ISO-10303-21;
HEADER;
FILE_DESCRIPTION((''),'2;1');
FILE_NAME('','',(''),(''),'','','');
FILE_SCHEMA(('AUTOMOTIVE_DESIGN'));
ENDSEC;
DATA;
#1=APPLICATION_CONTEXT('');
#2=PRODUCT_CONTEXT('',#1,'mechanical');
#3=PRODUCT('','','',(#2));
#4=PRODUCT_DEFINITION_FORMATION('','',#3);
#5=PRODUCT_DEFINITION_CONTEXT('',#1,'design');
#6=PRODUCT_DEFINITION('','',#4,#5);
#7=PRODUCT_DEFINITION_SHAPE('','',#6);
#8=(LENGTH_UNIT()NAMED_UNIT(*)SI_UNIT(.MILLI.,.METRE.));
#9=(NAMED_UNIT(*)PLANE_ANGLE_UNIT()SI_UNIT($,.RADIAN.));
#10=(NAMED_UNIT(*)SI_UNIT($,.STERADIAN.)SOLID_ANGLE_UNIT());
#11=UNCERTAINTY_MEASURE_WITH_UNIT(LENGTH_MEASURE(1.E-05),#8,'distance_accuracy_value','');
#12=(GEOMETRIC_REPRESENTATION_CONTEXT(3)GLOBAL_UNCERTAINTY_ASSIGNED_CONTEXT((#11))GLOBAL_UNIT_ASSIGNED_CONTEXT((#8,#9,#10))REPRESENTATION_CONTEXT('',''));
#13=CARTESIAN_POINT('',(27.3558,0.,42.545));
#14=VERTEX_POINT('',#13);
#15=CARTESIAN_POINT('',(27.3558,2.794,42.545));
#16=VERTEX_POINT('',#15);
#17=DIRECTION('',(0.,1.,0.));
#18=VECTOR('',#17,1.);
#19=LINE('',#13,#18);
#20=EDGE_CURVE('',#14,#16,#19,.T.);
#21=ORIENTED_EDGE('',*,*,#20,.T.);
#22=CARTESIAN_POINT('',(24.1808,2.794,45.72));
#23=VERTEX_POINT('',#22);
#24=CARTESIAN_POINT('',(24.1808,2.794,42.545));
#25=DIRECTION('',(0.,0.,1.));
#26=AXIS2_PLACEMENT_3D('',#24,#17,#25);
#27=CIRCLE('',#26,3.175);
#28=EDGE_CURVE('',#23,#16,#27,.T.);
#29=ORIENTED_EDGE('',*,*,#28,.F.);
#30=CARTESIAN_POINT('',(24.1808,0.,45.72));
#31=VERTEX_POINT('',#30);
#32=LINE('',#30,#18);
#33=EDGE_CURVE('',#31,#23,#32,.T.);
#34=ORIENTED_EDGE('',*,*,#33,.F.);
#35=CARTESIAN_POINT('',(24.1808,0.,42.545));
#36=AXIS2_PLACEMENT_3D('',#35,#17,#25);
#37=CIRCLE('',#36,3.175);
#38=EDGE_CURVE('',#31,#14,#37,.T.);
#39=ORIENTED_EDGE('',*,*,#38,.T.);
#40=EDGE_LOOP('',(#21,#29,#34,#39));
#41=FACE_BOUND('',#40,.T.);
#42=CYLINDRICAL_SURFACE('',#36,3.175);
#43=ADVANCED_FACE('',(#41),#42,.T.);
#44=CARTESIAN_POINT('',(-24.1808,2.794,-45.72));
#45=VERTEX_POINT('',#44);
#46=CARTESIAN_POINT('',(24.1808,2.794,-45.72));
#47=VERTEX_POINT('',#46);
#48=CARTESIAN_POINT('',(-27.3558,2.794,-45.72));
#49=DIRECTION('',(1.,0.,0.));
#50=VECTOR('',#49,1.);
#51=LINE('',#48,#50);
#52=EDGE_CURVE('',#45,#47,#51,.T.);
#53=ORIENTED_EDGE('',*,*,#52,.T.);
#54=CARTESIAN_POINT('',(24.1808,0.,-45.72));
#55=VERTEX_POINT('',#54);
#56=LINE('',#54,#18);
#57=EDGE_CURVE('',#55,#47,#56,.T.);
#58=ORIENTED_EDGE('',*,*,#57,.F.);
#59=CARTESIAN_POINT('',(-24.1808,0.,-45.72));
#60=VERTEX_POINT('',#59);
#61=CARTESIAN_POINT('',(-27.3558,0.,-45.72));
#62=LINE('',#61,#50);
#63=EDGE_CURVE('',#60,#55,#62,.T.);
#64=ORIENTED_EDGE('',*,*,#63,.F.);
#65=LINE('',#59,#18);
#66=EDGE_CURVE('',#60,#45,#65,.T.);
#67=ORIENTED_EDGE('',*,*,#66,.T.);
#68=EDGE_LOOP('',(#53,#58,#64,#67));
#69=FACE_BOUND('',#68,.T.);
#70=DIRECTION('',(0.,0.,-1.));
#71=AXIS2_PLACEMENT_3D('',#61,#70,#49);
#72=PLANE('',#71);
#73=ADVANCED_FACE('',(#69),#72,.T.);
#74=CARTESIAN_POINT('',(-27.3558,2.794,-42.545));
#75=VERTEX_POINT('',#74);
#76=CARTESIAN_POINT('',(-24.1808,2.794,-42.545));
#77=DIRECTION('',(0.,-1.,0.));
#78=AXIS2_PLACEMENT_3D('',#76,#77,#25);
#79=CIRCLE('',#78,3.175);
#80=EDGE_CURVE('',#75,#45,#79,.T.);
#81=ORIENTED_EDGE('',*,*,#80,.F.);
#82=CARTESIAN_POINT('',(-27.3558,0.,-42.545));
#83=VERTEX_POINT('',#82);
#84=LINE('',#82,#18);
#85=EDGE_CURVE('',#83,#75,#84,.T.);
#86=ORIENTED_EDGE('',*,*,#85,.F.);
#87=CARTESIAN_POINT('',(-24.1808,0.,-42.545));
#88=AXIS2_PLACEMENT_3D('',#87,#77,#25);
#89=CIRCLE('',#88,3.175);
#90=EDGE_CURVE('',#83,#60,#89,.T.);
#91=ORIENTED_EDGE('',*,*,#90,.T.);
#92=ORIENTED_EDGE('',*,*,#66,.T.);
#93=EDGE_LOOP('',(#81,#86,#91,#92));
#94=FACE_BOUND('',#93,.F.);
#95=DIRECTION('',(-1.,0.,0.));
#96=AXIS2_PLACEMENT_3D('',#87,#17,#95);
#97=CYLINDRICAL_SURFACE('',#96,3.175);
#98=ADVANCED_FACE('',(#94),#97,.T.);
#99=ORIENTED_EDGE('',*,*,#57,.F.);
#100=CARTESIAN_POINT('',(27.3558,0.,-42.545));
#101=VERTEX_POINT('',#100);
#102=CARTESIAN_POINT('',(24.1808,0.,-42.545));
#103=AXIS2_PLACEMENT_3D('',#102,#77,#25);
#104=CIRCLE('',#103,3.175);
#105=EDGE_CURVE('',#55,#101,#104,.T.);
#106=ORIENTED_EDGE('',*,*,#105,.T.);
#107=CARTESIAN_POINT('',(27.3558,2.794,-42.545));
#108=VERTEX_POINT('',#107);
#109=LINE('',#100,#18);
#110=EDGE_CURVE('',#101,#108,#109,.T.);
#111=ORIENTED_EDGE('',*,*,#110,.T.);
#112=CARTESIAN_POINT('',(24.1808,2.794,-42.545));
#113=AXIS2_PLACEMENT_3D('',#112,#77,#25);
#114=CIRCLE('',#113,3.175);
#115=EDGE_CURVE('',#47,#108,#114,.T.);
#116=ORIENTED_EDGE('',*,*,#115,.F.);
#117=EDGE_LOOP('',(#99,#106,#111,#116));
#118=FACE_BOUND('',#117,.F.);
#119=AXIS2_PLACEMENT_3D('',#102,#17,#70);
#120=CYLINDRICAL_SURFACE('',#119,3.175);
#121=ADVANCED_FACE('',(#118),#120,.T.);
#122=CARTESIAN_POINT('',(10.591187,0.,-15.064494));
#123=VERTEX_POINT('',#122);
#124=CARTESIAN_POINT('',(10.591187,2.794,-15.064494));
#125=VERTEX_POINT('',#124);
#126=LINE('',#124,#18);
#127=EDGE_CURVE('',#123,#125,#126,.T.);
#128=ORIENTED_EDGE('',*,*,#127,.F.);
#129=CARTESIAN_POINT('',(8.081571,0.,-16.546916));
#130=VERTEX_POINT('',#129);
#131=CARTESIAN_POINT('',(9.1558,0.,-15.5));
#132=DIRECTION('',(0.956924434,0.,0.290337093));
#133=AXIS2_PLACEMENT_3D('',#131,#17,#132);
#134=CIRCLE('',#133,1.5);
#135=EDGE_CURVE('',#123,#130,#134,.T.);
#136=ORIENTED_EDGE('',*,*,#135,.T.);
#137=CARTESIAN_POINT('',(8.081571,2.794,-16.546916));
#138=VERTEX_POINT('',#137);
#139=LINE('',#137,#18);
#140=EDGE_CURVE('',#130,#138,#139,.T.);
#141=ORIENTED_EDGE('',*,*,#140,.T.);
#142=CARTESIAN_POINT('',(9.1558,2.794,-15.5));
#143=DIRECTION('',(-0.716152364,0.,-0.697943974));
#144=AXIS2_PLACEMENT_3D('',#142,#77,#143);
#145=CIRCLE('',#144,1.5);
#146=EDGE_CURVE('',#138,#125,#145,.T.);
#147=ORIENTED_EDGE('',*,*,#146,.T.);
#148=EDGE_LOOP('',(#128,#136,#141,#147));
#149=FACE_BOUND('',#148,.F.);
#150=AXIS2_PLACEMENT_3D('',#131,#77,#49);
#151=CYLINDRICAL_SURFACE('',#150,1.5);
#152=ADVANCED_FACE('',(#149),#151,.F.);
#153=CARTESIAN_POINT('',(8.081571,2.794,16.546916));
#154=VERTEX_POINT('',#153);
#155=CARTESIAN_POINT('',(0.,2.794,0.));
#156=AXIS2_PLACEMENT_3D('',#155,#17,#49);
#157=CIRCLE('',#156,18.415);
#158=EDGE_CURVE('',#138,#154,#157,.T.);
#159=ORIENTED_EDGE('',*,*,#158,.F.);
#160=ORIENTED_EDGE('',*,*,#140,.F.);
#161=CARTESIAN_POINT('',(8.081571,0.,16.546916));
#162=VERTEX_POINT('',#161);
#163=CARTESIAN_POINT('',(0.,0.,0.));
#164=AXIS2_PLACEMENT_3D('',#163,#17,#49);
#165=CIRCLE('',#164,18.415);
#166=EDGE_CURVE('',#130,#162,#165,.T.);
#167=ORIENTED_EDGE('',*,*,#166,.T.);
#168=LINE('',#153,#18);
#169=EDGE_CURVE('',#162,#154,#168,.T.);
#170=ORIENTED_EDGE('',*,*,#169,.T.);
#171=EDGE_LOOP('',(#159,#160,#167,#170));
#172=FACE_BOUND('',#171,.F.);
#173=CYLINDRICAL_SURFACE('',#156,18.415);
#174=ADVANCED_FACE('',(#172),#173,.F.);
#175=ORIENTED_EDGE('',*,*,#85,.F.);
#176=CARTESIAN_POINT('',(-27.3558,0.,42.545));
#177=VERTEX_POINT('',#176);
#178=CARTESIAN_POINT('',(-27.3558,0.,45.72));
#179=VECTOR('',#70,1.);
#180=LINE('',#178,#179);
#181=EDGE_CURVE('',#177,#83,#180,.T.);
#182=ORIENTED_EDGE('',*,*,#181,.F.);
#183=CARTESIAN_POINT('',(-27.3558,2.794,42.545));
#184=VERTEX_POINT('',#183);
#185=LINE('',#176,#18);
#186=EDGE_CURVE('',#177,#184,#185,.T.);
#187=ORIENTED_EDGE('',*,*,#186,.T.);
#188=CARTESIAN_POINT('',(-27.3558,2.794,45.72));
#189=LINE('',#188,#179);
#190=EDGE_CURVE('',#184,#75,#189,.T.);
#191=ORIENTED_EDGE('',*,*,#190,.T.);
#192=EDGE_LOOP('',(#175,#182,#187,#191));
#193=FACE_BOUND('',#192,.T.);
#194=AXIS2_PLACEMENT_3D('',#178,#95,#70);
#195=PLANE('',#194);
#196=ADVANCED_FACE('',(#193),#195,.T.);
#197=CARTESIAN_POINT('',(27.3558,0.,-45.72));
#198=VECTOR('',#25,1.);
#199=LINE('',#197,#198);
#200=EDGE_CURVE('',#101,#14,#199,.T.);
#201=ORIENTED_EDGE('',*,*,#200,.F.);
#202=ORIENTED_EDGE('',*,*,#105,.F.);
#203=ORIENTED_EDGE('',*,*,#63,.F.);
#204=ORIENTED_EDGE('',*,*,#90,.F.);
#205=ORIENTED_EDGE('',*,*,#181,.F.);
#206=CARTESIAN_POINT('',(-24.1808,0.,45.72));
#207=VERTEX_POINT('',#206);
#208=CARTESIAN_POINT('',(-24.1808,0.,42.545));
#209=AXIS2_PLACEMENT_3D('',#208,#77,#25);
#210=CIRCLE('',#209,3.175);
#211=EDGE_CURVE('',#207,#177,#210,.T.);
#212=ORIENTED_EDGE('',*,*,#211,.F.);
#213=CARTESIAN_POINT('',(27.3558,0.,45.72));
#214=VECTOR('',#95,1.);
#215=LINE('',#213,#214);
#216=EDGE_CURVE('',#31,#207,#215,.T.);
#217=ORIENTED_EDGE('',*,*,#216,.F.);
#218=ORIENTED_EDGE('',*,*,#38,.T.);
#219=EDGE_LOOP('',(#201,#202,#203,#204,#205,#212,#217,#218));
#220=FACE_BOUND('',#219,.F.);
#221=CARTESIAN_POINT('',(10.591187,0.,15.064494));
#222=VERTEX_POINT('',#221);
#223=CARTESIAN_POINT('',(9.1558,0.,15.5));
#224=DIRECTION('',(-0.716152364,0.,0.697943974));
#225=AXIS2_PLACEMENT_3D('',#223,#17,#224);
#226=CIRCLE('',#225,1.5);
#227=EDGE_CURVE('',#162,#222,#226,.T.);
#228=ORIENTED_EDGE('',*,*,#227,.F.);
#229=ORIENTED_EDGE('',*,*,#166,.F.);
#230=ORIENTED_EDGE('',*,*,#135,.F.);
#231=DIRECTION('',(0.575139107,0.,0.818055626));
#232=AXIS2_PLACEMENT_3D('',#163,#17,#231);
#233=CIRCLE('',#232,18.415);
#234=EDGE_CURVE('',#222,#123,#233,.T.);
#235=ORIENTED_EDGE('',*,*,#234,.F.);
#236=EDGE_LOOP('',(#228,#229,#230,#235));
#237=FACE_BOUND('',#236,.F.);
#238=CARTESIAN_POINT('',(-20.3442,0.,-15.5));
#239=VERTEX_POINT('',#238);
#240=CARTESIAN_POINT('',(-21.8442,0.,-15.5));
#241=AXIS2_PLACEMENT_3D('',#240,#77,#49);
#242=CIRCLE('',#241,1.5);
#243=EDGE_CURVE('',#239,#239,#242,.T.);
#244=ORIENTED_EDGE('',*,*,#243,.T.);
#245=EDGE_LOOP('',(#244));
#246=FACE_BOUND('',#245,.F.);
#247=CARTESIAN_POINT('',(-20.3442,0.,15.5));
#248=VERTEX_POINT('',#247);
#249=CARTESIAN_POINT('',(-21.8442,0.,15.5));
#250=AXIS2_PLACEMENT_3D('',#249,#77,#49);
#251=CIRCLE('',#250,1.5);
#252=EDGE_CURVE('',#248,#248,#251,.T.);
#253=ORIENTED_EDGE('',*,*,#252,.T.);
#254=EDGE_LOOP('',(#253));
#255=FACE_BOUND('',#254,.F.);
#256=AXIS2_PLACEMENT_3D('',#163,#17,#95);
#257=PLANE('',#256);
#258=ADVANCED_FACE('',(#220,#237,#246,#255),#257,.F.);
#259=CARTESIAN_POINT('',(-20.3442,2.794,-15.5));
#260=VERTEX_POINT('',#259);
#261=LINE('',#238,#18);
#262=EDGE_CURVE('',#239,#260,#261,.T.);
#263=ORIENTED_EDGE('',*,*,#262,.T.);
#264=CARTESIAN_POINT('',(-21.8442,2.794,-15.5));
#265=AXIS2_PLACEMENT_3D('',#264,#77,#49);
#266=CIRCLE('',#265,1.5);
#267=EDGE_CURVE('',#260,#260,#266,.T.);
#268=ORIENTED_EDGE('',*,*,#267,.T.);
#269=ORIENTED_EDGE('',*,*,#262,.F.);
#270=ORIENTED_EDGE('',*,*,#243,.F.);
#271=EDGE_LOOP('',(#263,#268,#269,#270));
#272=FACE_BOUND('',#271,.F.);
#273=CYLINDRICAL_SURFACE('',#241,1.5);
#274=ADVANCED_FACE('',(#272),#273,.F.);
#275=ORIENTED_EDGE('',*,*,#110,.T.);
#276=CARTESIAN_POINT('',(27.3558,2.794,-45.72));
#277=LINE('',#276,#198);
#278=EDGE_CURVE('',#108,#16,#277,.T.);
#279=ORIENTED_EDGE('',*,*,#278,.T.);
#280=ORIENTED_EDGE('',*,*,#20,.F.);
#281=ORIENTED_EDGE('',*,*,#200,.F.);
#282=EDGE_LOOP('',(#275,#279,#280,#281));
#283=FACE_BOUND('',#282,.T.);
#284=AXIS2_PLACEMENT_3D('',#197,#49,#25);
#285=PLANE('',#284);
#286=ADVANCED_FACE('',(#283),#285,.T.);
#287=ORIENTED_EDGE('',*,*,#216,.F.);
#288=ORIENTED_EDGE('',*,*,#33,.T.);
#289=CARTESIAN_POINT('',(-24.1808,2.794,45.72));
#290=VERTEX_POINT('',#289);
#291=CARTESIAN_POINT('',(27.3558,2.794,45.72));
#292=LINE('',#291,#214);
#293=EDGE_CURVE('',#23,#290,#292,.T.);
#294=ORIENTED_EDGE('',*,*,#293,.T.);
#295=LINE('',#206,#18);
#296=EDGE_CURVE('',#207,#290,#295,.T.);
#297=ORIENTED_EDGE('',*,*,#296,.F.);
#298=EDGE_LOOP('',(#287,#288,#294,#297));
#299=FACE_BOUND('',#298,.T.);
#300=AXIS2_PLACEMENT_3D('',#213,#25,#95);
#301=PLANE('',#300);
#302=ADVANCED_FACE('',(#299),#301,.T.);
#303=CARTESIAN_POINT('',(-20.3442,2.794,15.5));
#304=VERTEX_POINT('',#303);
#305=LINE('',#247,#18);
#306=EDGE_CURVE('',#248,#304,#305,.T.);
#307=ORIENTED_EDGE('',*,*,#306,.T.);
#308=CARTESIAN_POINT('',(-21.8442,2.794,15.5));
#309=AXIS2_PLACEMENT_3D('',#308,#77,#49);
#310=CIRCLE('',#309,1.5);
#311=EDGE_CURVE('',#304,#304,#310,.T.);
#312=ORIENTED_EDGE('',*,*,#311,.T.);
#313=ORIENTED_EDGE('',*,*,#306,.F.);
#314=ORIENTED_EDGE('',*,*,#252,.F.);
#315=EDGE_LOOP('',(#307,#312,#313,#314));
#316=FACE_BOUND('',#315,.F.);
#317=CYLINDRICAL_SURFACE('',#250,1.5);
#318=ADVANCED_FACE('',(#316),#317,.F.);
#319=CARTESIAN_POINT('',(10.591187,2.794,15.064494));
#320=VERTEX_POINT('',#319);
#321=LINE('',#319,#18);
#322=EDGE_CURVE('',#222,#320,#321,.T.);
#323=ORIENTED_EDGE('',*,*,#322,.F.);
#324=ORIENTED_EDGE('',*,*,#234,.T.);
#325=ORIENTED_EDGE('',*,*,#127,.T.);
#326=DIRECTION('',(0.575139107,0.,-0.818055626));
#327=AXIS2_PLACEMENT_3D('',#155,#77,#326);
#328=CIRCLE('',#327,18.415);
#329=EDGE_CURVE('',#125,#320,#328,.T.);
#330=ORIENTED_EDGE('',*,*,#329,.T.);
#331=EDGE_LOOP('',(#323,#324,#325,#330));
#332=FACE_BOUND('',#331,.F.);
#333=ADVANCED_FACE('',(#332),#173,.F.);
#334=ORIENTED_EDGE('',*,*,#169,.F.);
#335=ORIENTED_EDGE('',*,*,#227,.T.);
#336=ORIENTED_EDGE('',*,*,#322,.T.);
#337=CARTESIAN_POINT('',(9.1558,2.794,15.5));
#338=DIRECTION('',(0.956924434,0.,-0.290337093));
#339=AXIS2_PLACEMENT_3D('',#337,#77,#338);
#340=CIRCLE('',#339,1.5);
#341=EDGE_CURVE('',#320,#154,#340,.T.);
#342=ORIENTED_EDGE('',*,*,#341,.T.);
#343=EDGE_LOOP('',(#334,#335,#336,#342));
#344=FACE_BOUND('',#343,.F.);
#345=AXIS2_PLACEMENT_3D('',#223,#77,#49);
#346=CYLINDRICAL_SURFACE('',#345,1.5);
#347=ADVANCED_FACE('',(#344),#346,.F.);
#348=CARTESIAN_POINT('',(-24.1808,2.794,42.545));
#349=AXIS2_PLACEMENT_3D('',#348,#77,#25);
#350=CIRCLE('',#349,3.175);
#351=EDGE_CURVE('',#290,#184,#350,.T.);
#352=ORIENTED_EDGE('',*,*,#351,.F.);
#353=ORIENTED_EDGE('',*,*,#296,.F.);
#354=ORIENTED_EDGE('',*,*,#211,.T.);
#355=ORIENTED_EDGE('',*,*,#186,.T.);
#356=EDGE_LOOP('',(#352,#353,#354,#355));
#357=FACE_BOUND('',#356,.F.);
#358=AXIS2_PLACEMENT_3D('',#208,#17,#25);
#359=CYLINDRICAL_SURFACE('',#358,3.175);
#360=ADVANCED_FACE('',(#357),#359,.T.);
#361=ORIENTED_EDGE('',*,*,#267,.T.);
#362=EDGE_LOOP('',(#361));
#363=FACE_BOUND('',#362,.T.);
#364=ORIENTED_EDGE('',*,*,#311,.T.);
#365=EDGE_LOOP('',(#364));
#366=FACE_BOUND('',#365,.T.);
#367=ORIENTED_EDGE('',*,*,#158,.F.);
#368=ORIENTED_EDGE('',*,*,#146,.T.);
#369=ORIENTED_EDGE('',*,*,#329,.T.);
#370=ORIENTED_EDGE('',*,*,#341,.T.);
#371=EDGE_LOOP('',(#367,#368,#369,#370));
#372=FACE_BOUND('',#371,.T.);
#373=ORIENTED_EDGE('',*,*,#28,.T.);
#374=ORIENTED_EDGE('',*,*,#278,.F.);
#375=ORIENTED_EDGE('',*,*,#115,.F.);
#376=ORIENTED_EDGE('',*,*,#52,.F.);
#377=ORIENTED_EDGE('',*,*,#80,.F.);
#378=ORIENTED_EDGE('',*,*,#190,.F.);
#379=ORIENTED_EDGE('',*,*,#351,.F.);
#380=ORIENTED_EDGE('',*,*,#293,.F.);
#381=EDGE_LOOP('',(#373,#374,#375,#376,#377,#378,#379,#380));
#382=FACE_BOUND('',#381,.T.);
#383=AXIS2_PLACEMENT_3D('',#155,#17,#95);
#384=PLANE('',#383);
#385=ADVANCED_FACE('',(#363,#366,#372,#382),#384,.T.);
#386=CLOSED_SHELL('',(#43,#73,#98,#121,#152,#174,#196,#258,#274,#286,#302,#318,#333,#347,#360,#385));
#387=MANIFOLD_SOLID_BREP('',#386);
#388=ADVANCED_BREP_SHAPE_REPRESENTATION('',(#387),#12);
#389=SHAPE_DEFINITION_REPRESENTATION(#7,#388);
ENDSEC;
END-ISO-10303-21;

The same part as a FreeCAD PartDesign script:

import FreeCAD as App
import Part
import Sketcher
from FreeCAD import Vector
Q = App.Units.Quantity


def edges_at(feature, points):
    """Names of the edges that pass closest to the given points."""
    edges = feature.Shape.Edges
    near = lambda p: min(range(len(edges)), key=lambda i: edges[i].distToShape(Part.Vertex(*p))[0])
    return sorted({f"Edge{near(p) + 1}" for p in points})

doc = App.newDocument("Part")
body = doc.addObject("PartDesign::Body", "Body")

# Sketch on XZ plane
sketch1 = doc.addObject("Sketcher::SketchObject", "Sketch")
body.addObject(sketch1)
sketch1.AttachmentSupport = (doc.XZ_Plane, [""])
sketch1.MapMode = "FlatFace"
sketch1.addGeometry(Part.LineSegment(Vector(-27, 46, 0), Vector(27, 46, 0)), False)
sketch1.addGeometry(Part.LineSegment(Vector(27, 46, 0), Vector(27, -46, 0)), False)
sketch1.addGeometry(Part.LineSegment(Vector(27, -46, 0), Vector(-27, -46, 0)), False)
sketch1.addGeometry(Part.LineSegment(Vector(-27, -46, 0), Vector(-27, 46, 0)), False)
sketch1.addConstraint(Sketcher.Constraint("Coincident", 0, 2, 1, 1))
sketch1.addConstraint(Sketcher.Constraint("Coincident", 1, 2, 2, 1))
sketch1.addConstraint(Sketcher.Constraint("Coincident", 2, 2, 3, 1))
sketch1.addConstraint(Sketcher.Constraint("Coincident", 3, 2, 0, 1))
sketch1.addConstraint(Sketcher.Constraint("Horizontal", 0))
sketch1.addConstraint(Sketcher.Constraint("Vertical", 1))
sketch1.addConstraint(Sketcher.Constraint("Horizontal", 2))
sketch1.addConstraint(Sketcher.Constraint("Vertical", 3))
sketch1.addConstraint(Sketcher.Constraint("Symmetric", 0, 2, 2, 2, -1, 1))
sketch1.addConstraint(Sketcher.Constraint("DistanceY", 1, 2, 1, 1, Q("3.6 in")))
sketch1.addConstraint(Sketcher.Constraint("DistanceX", 0, 1, 0, 2, Q("2.154 in")))
pad1 = doc.addObject("PartDesign::Pad", "Pad")
body.addObject(pad1)
pad1.Profile = sketch1
pad1.Length = Q("0.11 in")
pad1.Reversed = True
doc.recompute()

fillet = doc.addObject("PartDesign::Fillet", "Fillet")
body.addObject(fillet)
fillet.Base = (pad1, edges_at(pad1, [
    (-27.356, 1.397, 45.72),
    (27.356, 1.397, 45.72),
    (27.356, 1.397, -45.72),
    (-27.356, 1.397, -45.72),
]))
fillet.Radius = Q("0.125 in")

# Sketch on XZ plane
sketch2 = doc.addObject("Sketcher::SketchObject", "Sketch001")
body.addObject(sketch2)
sketch2.AttachmentSupport = (doc.XZ_Plane, [""])
sketch2.MapMode = "FlatFace"
sketch2.AttachmentOffset = App.Placement(Vector(0, 0, -0.11 * 25.4), App.Rotation())
sketch2.addGeometry(Part.Circle(Vector(0, 0, 0), Vector(0, 0, 1), 18), False)
sketch2.addConstraint(Sketcher.Constraint("Coincident", 0, 3, -1, 1))
sketch2.addConstraint(Sketcher.Constraint("Diameter", 0, Q("1.45 in")))
pocket1 = doc.addObject("PartDesign::Pocket", "Pocket")
body.addObject(pocket1)
pocket1.Profile = sketch2
pocket1.Length = Q("0.11 in")
pocket1.Reversed = True

# Sketch on XZ plane
sketch3 = doc.addObject("Sketcher::SketchObject", "Sketch002")
body.addObject(sketch3)
sketch3.AttachmentSupport = (doc.XZ_Plane, [""])
sketch3.MapMode = "FlatFace"
sketch3.addGeometry(Part.Circle(Vector(9.2, -15.5, 0), Vector(0, 0, 1), 1.5), False)
sketch3.addGeometry(Part.Circle(Vector(-21.8, -15.5, 0), Vector(0, 0, 1), 1.5), False)
sketch3.addGeometry(Part.Circle(Vector(9.2, 15.5, 0), Vector(0, 0, 1), 1.5), False)
sketch3.addGeometry(Part.Circle(Vector(-21.8, 15.5, 0), Vector(0, 0, 1), 1.5), False)
sketch3.addConstraint(Sketcher.Constraint("Equal", 0, 1))
sketch3.addConstraint(Sketcher.Constraint("Equal", 1, 2))
sketch3.addConstraint(Sketcher.Constraint("Equal", 2, 3))
sketch3.addConstraint(Sketcher.Constraint("Symmetric", 0, 3, 2, 3, -1))
sketch3.addConstraint(Sketcher.Constraint("Symmetric", 1, 3, 3, 3, -1))
sketch3.addConstraint(Sketcher.Constraint("Horizontal", 0, 3, 1, 3))
sketch3.addConstraint(Sketcher.Constraint("Diameter", 0, Q("0.1181 in")))
sketch3.addConstraint(Sketcher.Constraint("DistanceX", 1, 3, -1, 1, Q("0.86 in")))
sketch3.addConstraint(Sketcher.Constraint("DistanceX", -1, 1, 0, 3, Q("9.1558 mm")))
sketch3.addConstraint(Sketcher.Constraint("DistanceY", 0, 3, -1, 1, Q("15.5 mm")))
pocket2 = doc.addObject("PartDesign::Pocket", "Pocket001")
body.addObject(pocket2)
pocket2.Profile = sketch3
pocket2.Length = Q("0.11 in")

doc.recompute()
